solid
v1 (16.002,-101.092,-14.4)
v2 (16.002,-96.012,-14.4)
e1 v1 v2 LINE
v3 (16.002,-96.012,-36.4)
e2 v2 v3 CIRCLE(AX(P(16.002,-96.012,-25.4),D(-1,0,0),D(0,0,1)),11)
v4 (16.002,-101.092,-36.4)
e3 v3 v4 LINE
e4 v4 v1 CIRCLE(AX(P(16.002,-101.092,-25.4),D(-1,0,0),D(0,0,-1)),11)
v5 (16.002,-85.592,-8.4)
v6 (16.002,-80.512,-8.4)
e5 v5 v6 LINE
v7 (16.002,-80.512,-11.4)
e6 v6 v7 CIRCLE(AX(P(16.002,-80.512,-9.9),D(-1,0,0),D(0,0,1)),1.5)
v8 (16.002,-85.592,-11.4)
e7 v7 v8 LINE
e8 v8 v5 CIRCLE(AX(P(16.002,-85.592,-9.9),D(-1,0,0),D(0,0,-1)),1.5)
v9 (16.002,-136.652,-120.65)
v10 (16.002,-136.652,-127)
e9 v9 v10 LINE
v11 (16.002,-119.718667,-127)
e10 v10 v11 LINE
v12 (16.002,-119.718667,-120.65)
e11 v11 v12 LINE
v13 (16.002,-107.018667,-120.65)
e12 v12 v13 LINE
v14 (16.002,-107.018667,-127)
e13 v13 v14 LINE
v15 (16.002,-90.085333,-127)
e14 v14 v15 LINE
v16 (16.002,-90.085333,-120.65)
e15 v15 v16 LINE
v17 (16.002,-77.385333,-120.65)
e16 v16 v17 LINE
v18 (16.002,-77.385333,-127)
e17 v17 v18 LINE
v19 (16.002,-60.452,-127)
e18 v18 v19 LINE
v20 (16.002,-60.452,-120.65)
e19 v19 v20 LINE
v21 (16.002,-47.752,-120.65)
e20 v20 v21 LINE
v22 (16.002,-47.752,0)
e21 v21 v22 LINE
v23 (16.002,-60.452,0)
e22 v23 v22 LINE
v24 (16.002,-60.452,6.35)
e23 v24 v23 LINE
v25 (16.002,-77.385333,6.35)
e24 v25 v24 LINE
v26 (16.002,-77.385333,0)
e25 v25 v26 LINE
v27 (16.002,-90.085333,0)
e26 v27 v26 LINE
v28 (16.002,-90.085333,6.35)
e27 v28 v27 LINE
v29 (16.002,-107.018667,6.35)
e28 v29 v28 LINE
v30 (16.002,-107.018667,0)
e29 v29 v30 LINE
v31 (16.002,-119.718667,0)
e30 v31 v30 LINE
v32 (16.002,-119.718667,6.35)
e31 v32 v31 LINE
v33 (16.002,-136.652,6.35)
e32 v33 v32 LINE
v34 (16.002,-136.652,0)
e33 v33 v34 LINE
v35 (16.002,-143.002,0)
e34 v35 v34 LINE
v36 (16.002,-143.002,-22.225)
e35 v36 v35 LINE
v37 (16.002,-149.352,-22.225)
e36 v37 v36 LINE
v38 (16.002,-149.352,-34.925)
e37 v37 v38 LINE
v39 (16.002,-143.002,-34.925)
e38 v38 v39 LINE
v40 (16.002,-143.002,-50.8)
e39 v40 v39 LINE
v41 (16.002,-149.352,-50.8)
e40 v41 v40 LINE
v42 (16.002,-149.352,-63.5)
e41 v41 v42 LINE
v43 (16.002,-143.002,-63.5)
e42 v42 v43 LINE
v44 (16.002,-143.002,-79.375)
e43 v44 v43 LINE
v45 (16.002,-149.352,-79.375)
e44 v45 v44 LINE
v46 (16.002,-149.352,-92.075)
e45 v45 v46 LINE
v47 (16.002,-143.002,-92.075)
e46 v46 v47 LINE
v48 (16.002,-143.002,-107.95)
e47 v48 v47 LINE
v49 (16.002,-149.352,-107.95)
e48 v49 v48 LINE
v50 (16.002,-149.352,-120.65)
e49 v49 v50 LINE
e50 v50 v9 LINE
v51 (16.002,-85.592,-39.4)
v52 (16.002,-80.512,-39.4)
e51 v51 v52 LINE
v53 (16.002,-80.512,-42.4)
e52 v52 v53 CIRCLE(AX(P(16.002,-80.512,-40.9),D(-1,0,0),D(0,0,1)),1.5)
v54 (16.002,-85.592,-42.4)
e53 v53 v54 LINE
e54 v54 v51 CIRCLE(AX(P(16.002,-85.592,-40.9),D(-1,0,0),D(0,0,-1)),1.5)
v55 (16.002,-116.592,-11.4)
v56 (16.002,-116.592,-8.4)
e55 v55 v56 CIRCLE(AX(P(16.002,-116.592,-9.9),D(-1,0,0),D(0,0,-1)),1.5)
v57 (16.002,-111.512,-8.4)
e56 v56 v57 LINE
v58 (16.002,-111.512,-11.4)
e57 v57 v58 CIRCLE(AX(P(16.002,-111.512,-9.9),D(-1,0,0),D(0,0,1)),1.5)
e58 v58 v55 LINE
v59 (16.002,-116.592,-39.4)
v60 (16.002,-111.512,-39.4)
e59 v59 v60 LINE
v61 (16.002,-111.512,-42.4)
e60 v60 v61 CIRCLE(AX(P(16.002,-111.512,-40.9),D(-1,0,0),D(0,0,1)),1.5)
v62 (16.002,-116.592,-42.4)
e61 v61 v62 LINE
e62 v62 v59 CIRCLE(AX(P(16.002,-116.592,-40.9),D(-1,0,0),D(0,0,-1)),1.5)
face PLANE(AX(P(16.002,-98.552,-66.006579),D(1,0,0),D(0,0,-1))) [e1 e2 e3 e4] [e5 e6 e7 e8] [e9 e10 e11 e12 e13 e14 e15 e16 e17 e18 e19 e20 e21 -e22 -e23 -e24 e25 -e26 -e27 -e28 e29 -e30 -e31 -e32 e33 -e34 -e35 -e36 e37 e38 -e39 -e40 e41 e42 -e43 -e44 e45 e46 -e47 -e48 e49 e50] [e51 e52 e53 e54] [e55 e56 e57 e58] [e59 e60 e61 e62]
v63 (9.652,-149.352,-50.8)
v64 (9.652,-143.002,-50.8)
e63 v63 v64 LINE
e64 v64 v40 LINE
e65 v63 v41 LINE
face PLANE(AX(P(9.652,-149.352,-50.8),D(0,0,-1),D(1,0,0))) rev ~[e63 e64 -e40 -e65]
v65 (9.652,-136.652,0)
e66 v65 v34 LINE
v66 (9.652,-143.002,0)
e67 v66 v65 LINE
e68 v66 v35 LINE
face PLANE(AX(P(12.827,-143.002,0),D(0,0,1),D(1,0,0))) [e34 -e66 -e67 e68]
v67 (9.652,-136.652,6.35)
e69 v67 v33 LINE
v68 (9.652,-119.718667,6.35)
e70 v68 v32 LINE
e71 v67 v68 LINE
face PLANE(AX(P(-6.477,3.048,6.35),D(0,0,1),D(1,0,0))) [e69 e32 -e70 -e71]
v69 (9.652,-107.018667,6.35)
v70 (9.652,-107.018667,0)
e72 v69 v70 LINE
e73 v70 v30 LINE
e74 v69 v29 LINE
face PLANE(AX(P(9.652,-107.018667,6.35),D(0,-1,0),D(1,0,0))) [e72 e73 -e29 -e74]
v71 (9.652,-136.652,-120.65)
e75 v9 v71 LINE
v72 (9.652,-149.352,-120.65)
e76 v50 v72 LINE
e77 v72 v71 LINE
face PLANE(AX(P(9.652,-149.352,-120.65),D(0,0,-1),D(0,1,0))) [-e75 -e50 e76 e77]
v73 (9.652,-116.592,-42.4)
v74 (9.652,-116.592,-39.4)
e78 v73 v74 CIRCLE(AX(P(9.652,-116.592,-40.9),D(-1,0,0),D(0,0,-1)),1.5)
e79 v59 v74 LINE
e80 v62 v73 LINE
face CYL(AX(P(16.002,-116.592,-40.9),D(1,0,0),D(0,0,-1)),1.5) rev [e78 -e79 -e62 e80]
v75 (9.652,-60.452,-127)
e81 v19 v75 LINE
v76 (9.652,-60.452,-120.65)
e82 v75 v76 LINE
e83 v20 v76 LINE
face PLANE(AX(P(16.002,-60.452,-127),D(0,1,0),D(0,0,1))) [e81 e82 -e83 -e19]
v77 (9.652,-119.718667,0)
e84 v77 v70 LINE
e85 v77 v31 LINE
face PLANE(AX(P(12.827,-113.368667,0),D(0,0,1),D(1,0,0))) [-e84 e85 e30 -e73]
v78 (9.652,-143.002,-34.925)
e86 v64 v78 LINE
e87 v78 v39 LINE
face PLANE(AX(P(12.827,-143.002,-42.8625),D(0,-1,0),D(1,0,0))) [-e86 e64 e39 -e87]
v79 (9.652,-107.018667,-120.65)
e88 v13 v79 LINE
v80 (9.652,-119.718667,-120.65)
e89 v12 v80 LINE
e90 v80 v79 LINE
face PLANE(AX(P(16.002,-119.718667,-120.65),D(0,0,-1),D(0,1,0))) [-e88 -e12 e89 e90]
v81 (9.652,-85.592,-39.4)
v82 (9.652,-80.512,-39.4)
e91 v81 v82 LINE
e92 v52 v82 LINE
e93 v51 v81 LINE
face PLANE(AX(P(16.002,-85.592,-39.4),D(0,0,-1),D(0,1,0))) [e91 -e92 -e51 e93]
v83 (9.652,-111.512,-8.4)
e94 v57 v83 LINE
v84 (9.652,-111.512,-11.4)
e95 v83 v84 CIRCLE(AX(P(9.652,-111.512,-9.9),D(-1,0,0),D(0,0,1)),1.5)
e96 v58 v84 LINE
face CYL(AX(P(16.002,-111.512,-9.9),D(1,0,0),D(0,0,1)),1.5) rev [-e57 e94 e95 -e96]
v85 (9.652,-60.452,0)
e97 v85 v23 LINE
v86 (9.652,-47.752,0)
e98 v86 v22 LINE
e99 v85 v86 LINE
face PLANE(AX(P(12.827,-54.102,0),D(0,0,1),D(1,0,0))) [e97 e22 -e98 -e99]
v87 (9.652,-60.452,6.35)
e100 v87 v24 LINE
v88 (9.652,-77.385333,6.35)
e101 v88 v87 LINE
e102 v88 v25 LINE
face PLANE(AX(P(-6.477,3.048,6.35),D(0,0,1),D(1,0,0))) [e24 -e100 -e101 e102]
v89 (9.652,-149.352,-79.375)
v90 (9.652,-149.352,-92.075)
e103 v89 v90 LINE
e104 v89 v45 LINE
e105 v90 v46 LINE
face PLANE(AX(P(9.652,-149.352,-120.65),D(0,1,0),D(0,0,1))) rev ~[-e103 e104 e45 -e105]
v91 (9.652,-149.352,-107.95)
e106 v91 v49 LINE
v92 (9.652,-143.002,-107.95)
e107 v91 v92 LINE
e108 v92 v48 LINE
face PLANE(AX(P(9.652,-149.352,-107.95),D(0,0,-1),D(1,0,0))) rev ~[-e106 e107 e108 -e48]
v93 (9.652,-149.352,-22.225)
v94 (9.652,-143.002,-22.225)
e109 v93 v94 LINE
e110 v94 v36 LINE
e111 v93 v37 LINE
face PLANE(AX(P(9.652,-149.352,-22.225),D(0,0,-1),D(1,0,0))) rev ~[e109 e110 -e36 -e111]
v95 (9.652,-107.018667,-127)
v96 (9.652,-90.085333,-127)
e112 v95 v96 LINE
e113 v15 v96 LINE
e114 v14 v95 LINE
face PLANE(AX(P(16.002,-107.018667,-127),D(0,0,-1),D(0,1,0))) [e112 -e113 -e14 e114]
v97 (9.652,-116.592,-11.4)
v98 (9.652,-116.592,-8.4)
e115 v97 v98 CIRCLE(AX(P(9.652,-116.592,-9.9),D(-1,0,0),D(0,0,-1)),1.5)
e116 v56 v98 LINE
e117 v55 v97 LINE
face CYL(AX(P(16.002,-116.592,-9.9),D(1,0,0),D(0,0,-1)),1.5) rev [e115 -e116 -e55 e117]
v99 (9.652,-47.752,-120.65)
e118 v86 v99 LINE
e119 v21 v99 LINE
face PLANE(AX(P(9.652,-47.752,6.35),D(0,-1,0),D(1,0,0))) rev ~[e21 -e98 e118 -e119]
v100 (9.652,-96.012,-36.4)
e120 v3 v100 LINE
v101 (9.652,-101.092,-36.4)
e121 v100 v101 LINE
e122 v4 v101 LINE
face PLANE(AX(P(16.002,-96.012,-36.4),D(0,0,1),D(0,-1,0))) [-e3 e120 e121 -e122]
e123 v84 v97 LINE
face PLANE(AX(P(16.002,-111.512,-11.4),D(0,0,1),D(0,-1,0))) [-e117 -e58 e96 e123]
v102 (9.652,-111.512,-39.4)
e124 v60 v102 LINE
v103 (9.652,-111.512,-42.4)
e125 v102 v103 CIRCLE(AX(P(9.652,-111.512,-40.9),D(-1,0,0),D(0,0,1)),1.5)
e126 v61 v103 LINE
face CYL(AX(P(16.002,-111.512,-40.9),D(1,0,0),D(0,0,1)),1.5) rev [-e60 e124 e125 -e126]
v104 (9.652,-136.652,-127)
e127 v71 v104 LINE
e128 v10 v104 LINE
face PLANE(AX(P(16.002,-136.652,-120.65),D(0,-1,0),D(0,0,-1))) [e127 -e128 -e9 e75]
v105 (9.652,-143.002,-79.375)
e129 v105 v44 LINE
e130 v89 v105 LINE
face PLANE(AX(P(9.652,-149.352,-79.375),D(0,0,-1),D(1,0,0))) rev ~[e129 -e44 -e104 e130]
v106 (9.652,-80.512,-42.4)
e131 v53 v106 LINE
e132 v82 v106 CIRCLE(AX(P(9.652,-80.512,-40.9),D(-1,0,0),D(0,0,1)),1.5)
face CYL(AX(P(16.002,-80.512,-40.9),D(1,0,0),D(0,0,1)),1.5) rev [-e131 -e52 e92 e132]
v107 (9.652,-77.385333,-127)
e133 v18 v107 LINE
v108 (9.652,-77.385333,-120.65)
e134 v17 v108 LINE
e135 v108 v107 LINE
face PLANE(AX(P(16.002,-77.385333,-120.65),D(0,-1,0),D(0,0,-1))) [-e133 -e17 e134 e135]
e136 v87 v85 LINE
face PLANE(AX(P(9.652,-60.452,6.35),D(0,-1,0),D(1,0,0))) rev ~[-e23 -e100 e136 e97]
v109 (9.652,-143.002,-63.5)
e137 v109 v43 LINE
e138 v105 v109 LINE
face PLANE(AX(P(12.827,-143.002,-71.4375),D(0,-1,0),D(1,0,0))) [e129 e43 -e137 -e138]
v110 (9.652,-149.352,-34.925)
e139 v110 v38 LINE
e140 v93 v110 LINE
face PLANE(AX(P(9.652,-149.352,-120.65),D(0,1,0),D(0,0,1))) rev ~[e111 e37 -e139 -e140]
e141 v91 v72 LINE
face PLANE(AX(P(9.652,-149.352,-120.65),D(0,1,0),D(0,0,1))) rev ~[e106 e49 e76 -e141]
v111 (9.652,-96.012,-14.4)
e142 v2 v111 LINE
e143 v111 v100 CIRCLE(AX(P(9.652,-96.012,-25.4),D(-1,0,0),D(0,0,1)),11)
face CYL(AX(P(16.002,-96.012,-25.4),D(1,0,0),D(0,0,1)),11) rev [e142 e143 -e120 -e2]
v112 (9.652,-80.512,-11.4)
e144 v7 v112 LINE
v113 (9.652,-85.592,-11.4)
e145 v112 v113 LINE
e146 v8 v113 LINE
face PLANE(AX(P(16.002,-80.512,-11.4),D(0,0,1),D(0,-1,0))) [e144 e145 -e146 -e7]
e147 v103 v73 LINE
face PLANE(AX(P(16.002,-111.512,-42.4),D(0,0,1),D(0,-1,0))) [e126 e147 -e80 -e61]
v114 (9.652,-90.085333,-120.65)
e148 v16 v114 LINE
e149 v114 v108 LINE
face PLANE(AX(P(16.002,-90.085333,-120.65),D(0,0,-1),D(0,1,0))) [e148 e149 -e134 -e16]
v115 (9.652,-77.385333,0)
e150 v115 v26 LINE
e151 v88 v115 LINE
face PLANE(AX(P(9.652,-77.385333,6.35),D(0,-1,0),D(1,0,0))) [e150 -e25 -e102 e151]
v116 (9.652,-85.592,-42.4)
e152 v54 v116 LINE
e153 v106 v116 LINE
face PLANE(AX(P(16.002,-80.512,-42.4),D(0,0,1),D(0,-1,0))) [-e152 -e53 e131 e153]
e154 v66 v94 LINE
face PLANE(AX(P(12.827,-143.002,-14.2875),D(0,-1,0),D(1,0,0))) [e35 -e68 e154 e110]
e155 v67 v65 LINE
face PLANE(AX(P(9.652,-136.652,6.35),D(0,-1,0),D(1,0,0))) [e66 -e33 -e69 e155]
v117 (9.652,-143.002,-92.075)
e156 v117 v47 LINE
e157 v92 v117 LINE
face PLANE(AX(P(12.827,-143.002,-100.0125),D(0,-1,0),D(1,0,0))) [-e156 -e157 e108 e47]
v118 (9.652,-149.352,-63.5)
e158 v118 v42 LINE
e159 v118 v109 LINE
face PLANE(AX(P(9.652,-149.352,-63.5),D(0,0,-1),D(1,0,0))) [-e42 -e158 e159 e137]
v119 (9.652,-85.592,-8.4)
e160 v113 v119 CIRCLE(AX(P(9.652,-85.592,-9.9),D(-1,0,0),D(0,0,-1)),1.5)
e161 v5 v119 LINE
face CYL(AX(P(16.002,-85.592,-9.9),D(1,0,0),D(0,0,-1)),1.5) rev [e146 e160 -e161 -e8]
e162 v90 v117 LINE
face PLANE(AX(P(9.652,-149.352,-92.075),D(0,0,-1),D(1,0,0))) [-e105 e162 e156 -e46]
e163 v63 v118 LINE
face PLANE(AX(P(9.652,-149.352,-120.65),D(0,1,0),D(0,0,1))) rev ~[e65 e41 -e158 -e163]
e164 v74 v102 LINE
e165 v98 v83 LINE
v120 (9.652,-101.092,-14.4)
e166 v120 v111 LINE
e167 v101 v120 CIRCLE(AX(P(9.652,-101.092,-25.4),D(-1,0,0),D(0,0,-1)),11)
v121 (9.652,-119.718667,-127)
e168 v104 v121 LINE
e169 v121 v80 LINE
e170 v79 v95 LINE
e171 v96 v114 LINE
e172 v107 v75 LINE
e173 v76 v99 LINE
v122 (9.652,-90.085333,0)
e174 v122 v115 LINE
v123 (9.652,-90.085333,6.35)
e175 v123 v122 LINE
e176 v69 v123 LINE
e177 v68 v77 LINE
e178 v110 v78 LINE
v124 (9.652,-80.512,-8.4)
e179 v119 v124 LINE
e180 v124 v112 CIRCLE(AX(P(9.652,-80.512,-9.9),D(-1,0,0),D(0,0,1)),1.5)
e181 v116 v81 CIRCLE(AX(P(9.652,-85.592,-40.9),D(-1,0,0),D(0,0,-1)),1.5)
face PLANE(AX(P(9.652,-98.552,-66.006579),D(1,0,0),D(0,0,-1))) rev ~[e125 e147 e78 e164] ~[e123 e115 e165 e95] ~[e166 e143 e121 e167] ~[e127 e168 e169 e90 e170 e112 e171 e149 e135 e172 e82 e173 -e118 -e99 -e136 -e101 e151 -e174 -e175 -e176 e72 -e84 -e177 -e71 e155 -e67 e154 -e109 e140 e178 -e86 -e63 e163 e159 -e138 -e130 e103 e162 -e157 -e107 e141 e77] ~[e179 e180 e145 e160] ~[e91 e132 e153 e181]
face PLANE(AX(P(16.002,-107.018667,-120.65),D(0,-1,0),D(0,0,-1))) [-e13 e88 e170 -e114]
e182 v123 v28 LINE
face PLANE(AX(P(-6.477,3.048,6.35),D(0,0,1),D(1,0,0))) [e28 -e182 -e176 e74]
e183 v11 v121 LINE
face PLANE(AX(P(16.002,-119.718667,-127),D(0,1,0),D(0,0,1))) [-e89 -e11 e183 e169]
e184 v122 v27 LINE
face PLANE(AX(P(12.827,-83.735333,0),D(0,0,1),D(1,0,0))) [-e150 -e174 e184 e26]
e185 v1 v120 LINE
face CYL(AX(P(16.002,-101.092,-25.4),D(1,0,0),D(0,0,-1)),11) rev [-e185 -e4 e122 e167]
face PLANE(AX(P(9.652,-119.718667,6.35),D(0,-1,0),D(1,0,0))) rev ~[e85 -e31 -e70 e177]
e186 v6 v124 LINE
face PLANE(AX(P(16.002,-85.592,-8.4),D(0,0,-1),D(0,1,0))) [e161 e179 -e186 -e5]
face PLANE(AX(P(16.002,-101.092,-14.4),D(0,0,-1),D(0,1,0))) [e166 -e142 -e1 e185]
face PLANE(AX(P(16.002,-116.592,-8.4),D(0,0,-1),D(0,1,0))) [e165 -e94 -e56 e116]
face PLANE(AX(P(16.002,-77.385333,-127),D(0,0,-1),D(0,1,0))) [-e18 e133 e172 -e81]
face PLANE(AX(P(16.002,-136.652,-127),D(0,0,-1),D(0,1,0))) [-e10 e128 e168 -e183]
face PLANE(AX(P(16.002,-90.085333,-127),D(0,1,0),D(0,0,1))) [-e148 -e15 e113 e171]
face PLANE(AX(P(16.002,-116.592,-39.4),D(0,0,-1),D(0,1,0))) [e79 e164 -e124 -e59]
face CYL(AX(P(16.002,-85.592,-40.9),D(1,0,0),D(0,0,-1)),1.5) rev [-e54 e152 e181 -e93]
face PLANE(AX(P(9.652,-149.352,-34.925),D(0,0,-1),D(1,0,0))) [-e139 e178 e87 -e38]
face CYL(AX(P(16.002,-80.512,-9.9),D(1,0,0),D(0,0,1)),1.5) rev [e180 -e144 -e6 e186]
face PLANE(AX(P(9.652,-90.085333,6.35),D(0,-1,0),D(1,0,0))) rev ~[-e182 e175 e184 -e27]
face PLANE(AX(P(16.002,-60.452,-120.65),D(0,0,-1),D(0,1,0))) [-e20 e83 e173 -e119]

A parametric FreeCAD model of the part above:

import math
import FreeCAD as App
import Part
import Sketcher
from FreeCAD import Vector
Q = App.Units.Quantity

doc = App.newDocument("Part")
params = doc.addObject("Spreadsheet::Sheet", "Params")
for row, (alias, value) in enumerate([
    ("sketch1_radius", "0.1 in"),
    ("sketch1_height", "12 in"),
    ("sketch1_height2", "10.9 in"),
    ("sketch1_width", "1.77 in"),
    ("sketch1_width2", "0.41 in"),
    ("pad1_length", "0.25 in"),
    ("sketch2_width", "4 in"),
    ("sketch2_height", "5 in"),
    ("sketch2_width2", "0.5 in"),
    ("sketch2_width3", "0.2 in"),
    ("sketch2_height2", "0.25 in"),
    ("pad2_length", "0.25 in"),
    ("sketch3_width", "0.25 in"),
    ("sketch3_height", "4.75 in"),
    ("pad3_length", "1.52 in"),
    ("sketch4_radius", "0.1 in"),
    ("sketch4_height", "4 in"),
    ("sketch4_height2", "10.9 in"),
    ("sketch4_width", "0.25 in"),
    ("sketch4_width2", "0.41 in"),
    ("sketch5_height", "0.5 in"),
    ("sketch5_width", "0.25 in"),
    ("pocket2_length", "0.25 in"),
    ("sketch6_width", "0.25 in"),
    ("sketch6_height", "0.625 in"),
    ("sketch6_height2", "1.125 in"),
    ("pocket3_length", "0.25 in"),
], start=1):
    params.set(f"A{row}", alias)
    params.set(f"B{row}", "=" + value)
    params.setAlias(f"B{row}", alias)

body = doc.addObject("PartDesign::Body", "Body")

sketch1 = body.newObject("Sketcher::SketchObject", "Sketch")
sketch1.AttachmentSupport = (doc.getObject("XY_Plane"), [""])
sketch1.MapMode = "FlatFace"
sketch1.addGeometry([
    Part.LineSegment(Vector(-28.956, 155.448, 0), Vector(-28.956, -149.352, 0)),
    Part.LineSegment(Vector(-28.956, -149.352, 0), Vector(16.002, -149.352, 0)),
    Part.LineSegment(Vector(16.002, -149.352, 0), Vector(16.002, 155.448, 0)),
    Part.LineSegment(Vector(16.002, 155.448, 0), Vector(-28.956, 155.448, 0)),
    Part.LineSegment(Vector(-3.302, -143.002, 0), Vector(-3.302, 133.858, 0)),
    Part.ArcOfCircle(Part.Circle(Vector(-5.842, 133.858, 0), Vector(0, 0, 1), 2.54), math.radians(0), math.radians(90)),
    Part.LineSegment(Vector(-5.842, 136.398, 0), Vector(-16.256, 136.398, 0)),
    Part.LineSegment(Vector(-16.256, 136.398, 0), Vector(-16.256, 143.002, 0)),
    Part.LineSegment(Vector(-16.256, 143.002, 0), Vector(3.302, 143.002, 0)),
    Part.LineSegment(Vector(3.302, 143.002, 0), Vector(3.302, -143.002, 0)),
    Part.LineSegment(Vector(3.302, -143.002, 0), Vector(-3.302, -143.002, 0)),
], False)
sketch1.addConstraint([
    Sketcher.Constraint("Coincident", 0, 2, 1, 1),
    Sketcher.Constraint("Coincident", 1, 2, 2, 1),
    Sketcher.Constraint("Coincident", 2, 2, 3, 1),
    Sketcher.Constraint("Coincident", 3, 2, 0, 1),
    Sketcher.Constraint("Tangent", 4, 2, 5, 1),
    Sketcher.Constraint("Tangent", 5, 2, 6, 1),
    Sketcher.Constraint("Coincident", 6, 2, 7, 1),
    Sketcher.Constraint("Coincident", 7, 2, 8, 1),
    Sketcher.Constraint("Coincident", 8, 2, 9, 1),
    Sketcher.Constraint("Coincident", 9, 2, 10, 1),
    Sketcher.Constraint("Coincident", 10, 2, 4, 1),
    Sketcher.Constraint("Vertical", 0),
    Sketcher.Constraint("Horizontal", 1),
    Sketcher.Constraint("Vertical", 2),
    Sketcher.Constraint("Horizontal", 3),
    Sketcher.Constraint("Vertical", 4),
    Sketcher.Constraint("Horizontal", 6),
    Sketcher.Constraint("Vertical", 7),
    Sketcher.Constraint("Horizontal", 8),
    Sketcher.Constraint("Vertical", 9),
    Sketcher.Constraint("Horizontal", 10),
    Sketcher.Constraint("Symmetric", 8, 2, 10, 2, -1, 1),
    Sketcher.Constraint("Equal", 10, 7),
    Sketcher.Constraint("Radius", 5, Q("0.1 in")),
    Sketcher.Constraint("DistanceY", 0, 2, 0, 1, Q("12 in")),
    Sketcher.Constraint("DistanceY", 4, 1, 4, 2, Q("10.9 in")),
    Sketcher.Constraint("DistanceX", 1, 1, 1, 2, Q("1.77 in")),
    Sketcher.Constraint("DistanceX", 6, 2, 6, 1, Q("0.41 in")),
    Sketcher.Constraint("DistanceX", 8, 1, 8, 2, Q("0.77 in")),
    Sketcher.Constraint("DistanceX", 3, 2, 6, 2, Q("0.5 in")),
    Sketcher.Constraint("DistanceY", 0, 2, -1, 1, Q("5.88 in")),
])
sketch1.setExpression("Constraints[23]", "Params.sketch1_radius")
sketch1.setExpression("Constraints[24]", "Params.sketch1_height")
sketch1.setExpression("Constraints[25]", "Params.sketch1_height2")
sketch1.setExpression("Constraints[26]", "Params.sketch1_width")
sketch1.setExpression("Constraints[27]", "Params.sketch1_width2")
pad1 = body.newObject("PartDesign::Pad", "Pad")
pad1.Profile = sketch1
pad1.setExpression("Length", "Params.pad1_length")

sketch2 = body.newObject("Sketcher::SketchObject", "Sketch001")
sketch2.AttachmentSupport = (doc.getObject("YZ_Plane"), [""])
sketch2.MapMode = "FlatFace"
sketch2.AttachmentOffset = App.Placement(Vector(0, 0, 0.63 * 25.4), App.Rotation())
sketch2.addGeometry([
    Part.LineSegment(Vector(-60.452, -120.65, 0), Vector(-47.752, -120.65, 0)),
    Part.LineSegment(Vector(-47.752, -120.65, 0), Vector(-47.752, 6.35, 0)),
    Part.LineSegment(Vector(-47.752, 6.35, 0), Vector(-149.352, 6.35, 0)),
    Part.LineSegment(Vector(-149.352, 6.35, 0), Vector(-149.352, -120.65, 0)),
    Part.LineSegment(Vector(-149.352, -120.65, 0), Vector(-136.652, -120.65, 0)),
    Part.LineSegment(Vector(-136.652, -120.65, 0), Vector(-136.652, -127, 0)),
    Part.LineSegment(Vector(-136.652, -127, 0), Vector(-119.718667, -127, 0)),
    Part.LineSegment(Vector(-119.718667, -127, 0), Vector(-119.718667, -120.65, 0)),
    Part.LineSegment(Vector(-119.718667, -120.65, 0), Vector(-107.018667, -120.65, 0)),
    Part.LineSegment(Vector(-107.018667, -120.65, 0), Vector(-107.018667, -127, 0)),
    Part.LineSegment(Vector(-107.018667, -127, 0), Vector(-90.085333, -127, 0)),
    Part.LineSegment(Vector(-90.085333, -127, 0), Vector(-90.085333, -120.65, 0)),
    Part.LineSegment(Vector(-90.085333, -120.65, 0), Vector(-77.385333, -120.65, 0)),
    Part.LineSegment(Vector(-77.385333, -120.65, 0), Vector(-77.385333, -127, 0)),
    Part.LineSegment(Vector(-77.385333, -127, 0), Vector(-60.452, -127, 0)),
    Part.LineSegment(Vector(-60.452, -127, 0), Vector(-60.452, -120.65, 0)),
    Part.LineSegment(Vector(-111.512, -11.4, 0), Vector(-116.592, -11.4, 0)),
    Part.ArcOfCircle(Part.Circle(Vector(-116.592, -9.9, 0), Vector(0, 0, 1), 1.5), math.radians(90), math.radians(270)),
    Part.LineSegment(Vector(-116.592, -8.4, 0), Vector(-111.512, -8.4, 0)),
    Part.ArcOfCircle(Part.Circle(Vector(-111.512, -9.9, 0), Vector(0, 0, 1), 1.5), math.radians(-90), math.radians(90)),
    Part.ArcOfCircle(Part.Circle(Vector(-111.512, -40.9, 0), Vector(0, 0, 1), 1.5), math.radians(-90), math.radians(90)),
    Part.LineSegment(Vector(-111.512, -42.4, 0), Vector(-116.592, -42.4, 0)),
    Part.ArcOfCircle(Part.Circle(Vector(-116.592, -40.9, 0), Vector(0, 0, 1), 1.5), math.radians(90), math.radians(270)),
    Part.LineSegment(Vector(-116.592, -39.4, 0), Vector(-111.512, -39.4, 0)),
    Part.LineSegment(Vector(-80.512, -11.4, 0), Vector(-85.592, -11.4, 0)),
    Part.ArcOfCircle(Part.Circle(Vector(-85.592, -9.9, 0), Vector(0, 0, 1), 1.5), math.radians(90), math.radians(270)),
    Part.LineSegment(Vector(-85.592, -8.4, 0), Vector(-80.512, -8.4, 0)),
    Part.ArcOfCircle(Part.Circle(Vector(-80.512, -9.9, 0), Vector(0, 0, 1), 1.5), math.radians(-90), math.radians(90)),
    Part.LineSegment(Vector(-96.012, -36.4, 0), Vector(-101.092, -36.4, 0)),
    Part.ArcOfCircle(Part.Circle(Vector(-101.092, -25.4, 0), Vector(0, 0, 1), 11), math.radians(90), math.radians(270)),
    Part.LineSegment(Vector(-101.092, -14.4, 0), Vector(-96.012, -14.4, 0)),
    Part.ArcOfCircle(Part.Circle(Vector(-96.012, -25.4, 0), Vector(0, 0, 1), 11), math.radians(-90), math.radians(90)),
    Part.LineSegment(Vector(-80.512, -42.4, 0), Vector(-85.592, -42.4, 0)),
    Part.ArcOfCircle(Part.Circle(Vector(-85.592, -40.9, 0), Vector(0, 0, 1), 1.5), math.radians(90), math.radians(270)),
    Part.LineSegment(Vector(-85.592, -39.4, 0), Vector(-80.512, -39.4, 0)),
    Part.ArcOfCircle(Part.Circle(Vector(-80.512, -40.9, 0), Vector(0, 0, 1), 1.5), math.radians(-90), math.radians(90)),
], False)
sketch2.addConstraint([
    Sketcher.Constraint("Coincident", 0, 2, 1, 1),
    Sketcher.Constraint("Coincident", 1, 2, 2, 1),
    Sketcher.Constraint("Coincident", 2, 2, 3, 1),
    Sketcher.Constraint("Coincident", 3, 2, 4, 1),
    Sketcher.Constraint("Coincident", 4, 2, 5, 1),
    Sketcher.Constraint("Coincident", 5, 2, 6, 1),
    Sketcher.Constraint("Coincident", 6, 2, 7, 1),
    Sketcher.Constraint("Coincident", 7, 2, 8, 1),
    Sketcher.Constraint("Coincident", 8, 2, 9, 1),
    Sketcher.Constraint("Coincident", 9, 2, 10, 1),
    Sketcher.Constraint("Coincident", 10, 2, 11, 1),
    Sketcher.Constraint("Coincident", 11, 2, 12, 1),
    Sketcher.Constraint("Coincident", 12, 2, 13, 1),
    Sketcher.Constraint("Coincident", 13, 2, 14, 1),
    Sketcher.Constraint("Coincident", 14, 2, 15, 1),
    Sketcher.Constraint("Coincident", 15, 2, 0, 1),
    Sketcher.Constraint("Tangent", 16, 2, 17, 2),
    Sketcher.Constraint("Tangent", 17, 1, 18, 1),
    Sketcher.Constraint("Tangent", 18, 2, 19, 2),
    Sketcher.Constraint("Tangent", 19, 1, 16, 1),
    Sketcher.Constraint("Tangent", 20, 1, 21, 1),
    Sketcher.Constraint("Tangent", 21, 2, 22, 2),
    Sketcher.Constraint("Tangent", 22, 1, 23, 1),
    Sketcher.Constraint("Tangent", 23, 2, 20, 2),
    Sketcher.Constraint("Tangent", 24, 2, 25, 2),
    Sketcher.Constraint("Tangent", 25, 1, 26, 1),
    Sketcher.Constraint("Tangent", 26, 2, 27, 2),
    Sketcher.Constraint("Tangent", 27, 1, 24, 1),
    Sketcher.Constraint("Tangent", 28, 2, 29, 2),
    Sketcher.Constraint("Tangent", 29, 1, 30, 1),
    Sketcher.Constraint("Tangent", 30, 2, 31, 2),
    Sketcher.Constraint("Tangent", 31, 1, 28, 1),
    Sketcher.Constraint("Tangent", 32, 2, 33, 2),
    Sketcher.Constraint("Tangent", 33, 1, 34, 1),
    Sketcher.Constraint("Tangent", 34, 2, 35, 2),
    Sketcher.Constraint("Tangent", 35, 1, 32, 1),
    Sketcher.Constraint("Horizontal", 0),
    Sketcher.Constraint("Vertical", 1),
    Sketcher.Constraint("Horizontal", 2),
    Sketcher.Constraint("Vertical", 3),
    Sketcher.Constraint("Horizontal", 4),
    Sketcher.Constraint("Vertical", 5),
    Sketcher.Constraint("Horizontal", 6),
    Sketcher.Constraint("Vertical", 7),
    Sketcher.Constraint("Horizontal", 8),
    Sketcher.Constraint("Vertical", 9),
    Sketcher.Constraint("Horizontal", 10),
    Sketcher.Constraint("Vertical", 11),
    Sketcher.Constraint("Horizontal", 12),
    Sketcher.Constraint("Vertical", 13),
    Sketcher.Constraint("Horizontal", 14),
    Sketcher.Constraint("Vertical", 15),
    Sketcher.Constraint("Horizontal", 16),
    Sketcher.Constraint("Horizontal", 18),
    Sketcher.Constraint("Horizontal", 21),
    Sketcher.Constraint("Horizontal", 23),
    Sketcher.Constraint("Horizontal", 24),
    Sketcher.Constraint("Horizontal", 26),
    Sketcher.Constraint("Horizontal", 28),
    Sketcher.Constraint("Horizontal", 30),
    Sketcher.Constraint("Horizontal", 32),
    Sketcher.Constraint("Horizontal", 34),
    Sketcher.Constraint("Equal", 19, 20),
    Sketcher.Constraint("Equal", 22, 25),
    Sketcher.Constraint("Equal", 27, 33),
    Sketcher.Constraint("Horizontal", 19, 3, 25, 3),
    Sketcher.Constraint("Horizontal", 22, 3, 33, 3),
    Sketcher.Constraint("Horizontal", 0, 2, 3, 2),
    Sketcher.Constraint("Horizontal", 4, 2, 7, 2),
    Sketcher.Constraint("Horizontal", 6, 2, 9, 2),
    Sketcher.Constraint("Horizontal", 8, 2, 11, 2),
    Sketcher.Constraint("Horizontal", 10, 2, 13, 2),
    Sketcher.Constraint("Vertical", 19, 3, 20, 3),
    Sketcher.Constraint("Vertical", 17, 3, 22, 3),
    Sketcher.Constraint("Vertical", 25, 3, 33, 3),
    Sketcher.Constraint("Vertical", 27, 3, 35, 3),
    Sketcher.Constraint("Equal", 0, 4),
    Sketcher.Constraint("Equal", 4, 8),
    Sketcher.Constraint("Equal", 6, 10),
    Sketcher.Constraint("Equal", 8, 12),
    Sketcher.Constraint("Equal", 10, 14),
    Sketcher.Constraint("Equal", 23, 24),
    Sketcher.Constraint("Equal", 26, 28),
    Sketcher.Constraint("DistanceX", 2, 2, 2, 1, Q("4 in")),
    Sketcher.Constraint("DistanceY", 1, 1, 1, 2, Q("5 in")),
    Sketcher.Constraint("DistanceX", 0, 1, 0, 2, Q("0.5 in")),
    Sketcher.Constraint("DistanceX", 16, 2, 16, 1, Q("0.2 in")),
    Sketcher.Constraint("DistanceY", 29, 3, -1, 1, Q("1 in")),
    Sketcher.Constraint("DistanceY", 5, 2, -1, 1, Q("5 in")),
    Sketcher.Constraint("DistanceY", 5, 2, 5, 1, Q("0.25 in")),
    Sketcher.Constraint("DistanceX", 31, 3, 0, 2, Q("1.9 in")),
    Sketcher.Constraint("DistanceX", 29, 3, -1, 1, Q("3.98 in")),
    Sketcher.Constraint("Radius", 17, Q("1.5 mm")),
    Sketcher.Constraint("Radius", 29, Q("11 mm")),
    Sketcher.Constraint("DistanceX", 17, 3, -1, 1, Q("116.592 mm")),
    Sketcher.Constraint("DistanceY", 17, 3, -1, 1, Q("9.9 mm")),
    Sketcher.Constraint("DistanceY", 20, 3, -1, 1, Q("40.9 mm")),
    Sketcher.Constraint("DistanceX", 25, 3, -1, 1, Q("85.592 mm")),
])
sketch2.setExpression("Constraints[83]", "Params.sketch2_width")
sketch2.setExpression("Constraints[84]", "Params.sketch2_height")
sketch2.setExpression("Constraints[85]", "Params.sketch2_width2")
sketch2.setExpression("Constraints[86]", "Params.sketch2_width3")
sketch2.setExpression("Constraints[89]", "Params.sketch2_height2")
pad2 = body.newObject("PartDesign::Pad", "Pad001")
pad2.Profile = sketch2
pad2.setExpression("Length", "Params.pad2_length")
pad2.Reversed = True

sketch3 = body.newObject("Sketcher::SketchObject", "Sketch002")
sketch3.AttachmentSupport = (doc.getObject("YZ_Plane"), [""])
sketch3.MapMode = "FlatFace"
sketch3.AttachmentOffset = App.Placement(Vector(0, 0, 0.38 * 25.4), App.Rotation())
sketch3.addGeometry([
    Part.LineSegment(Vector(-143.002, -120.65, 0), Vector(-149.352, -120.65, 0)),
    Part.LineSegment(Vector(-149.352, -120.65, 0), Vector(-149.352, 0, 0)),
    Part.LineSegment(Vector(-149.352, 0, 0), Vector(-143.002, 0, 0)),
    Part.LineSegment(Vector(-143.002, 0, 0), Vector(-143.002, -120.65, 0)),
], False)
sketch3.addConstraint([
    Sketcher.Constraint("Coincident", 0, 2, 1, 1),
    Sketcher.Constraint("Coincident", 1, 2, 2, 1),
    Sketcher.Constraint("Coincident", 2, 2, 3, 1),
    Sketcher.Constraint("Coincident", 3, 2, 0, 1),
    Sketcher.Constraint("Horizontal", 0),
    Sketcher.Constraint("Vertical", 1),
    Sketcher.Constraint("Horizontal", 2),
    Sketcher.Constraint("Vertical", 3),
    Sketcher.Constraint("PointOnObject", 1, 2, -1),
    Sketcher.Constraint("DistanceX", 0, 2, 0, 1, Q("0.25 in")),
    Sketcher.Constraint("DistanceY", 1, 1, 1, 2, Q("4.75 in")),
    Sketcher.Constraint("DistanceX", 0, 2, -1, 1, Q("5.88 in")),
])
sketch3.setExpression("Constraints[9]", "Params.sketch3_width")
sketch3.setExpression("Constraints[10]", "Params.sketch3_height")
pad3 = body.newObject("PartDesign::Pad", "Pad002")
pad3.Profile = sketch3
pad3.setExpression("Length", "Params.pad3_length")
pad3.Reversed = True

sketch4 = body.newObject("Sketcher::SketchObject", "Sketch003")
sketch4.AttachmentSupport = (doc.getObject("XY_Plane"), [""])
sketch4.MapMode = "FlatFace"
sketch4.AttachmentOffset = App.Placement(Vector(0, 0, 0.25 * 25.4), App.Rotation())
sketch4.addGeometry([
    Part.LineSegment(Vector(9.652, -149.352, 0), Vector(9.652, -47.752, 0)),
    Part.LineSegment(Vector(9.652, -47.752, 0), Vector(16.002, -47.752, 0)),
    Part.LineSegment(Vector(16.002, -47.752, 0), Vector(16.002, 165.69935, 0)),
    Part.LineSegment(Vector(16.002, 165.69935, 0), Vector(-54.223543, 165.69935, 0)),
    Part.LineSegment(Vector(-54.223543, 165.69935, 0), Vector(-54.223543, -149.352, 0)),
    Part.LineSegment(Vector(-54.223543, -149.352, 0), Vector(9.652, -149.352, 0)),
    Part.LineSegment(Vector(-5.842, 136.398, 0), Vector(-16.256, 136.398, 0)),
    Part.LineSegment(Vector(-16.256, 136.398, 0), Vector(-16.256, 143.002, 0)),
    Part.LineSegment(Vector(-16.256, 143.002, 0), Vector(3.302, 143.002, 0)),
    Part.LineSegment(Vector(3.302, 143.002, 0), Vector(3.302, -143.002, 0)),
    Part.LineSegment(Vector(3.302, -143.002, 0), Vector(-3.302, -143.002, 0)),
    Part.LineSegment(Vector(-3.302, -143.002, 0), Vector(-3.302, 133.858, 0)),
    Part.ArcOfCircle(Part.Circle(Vector(-5.842, 133.858, 0), Vector(0, 0, 1), 2.54), math.radians(0), math.radians(90)),
], False)
sketch4.addConstraint([
    Sketcher.Constraint("Coincident", 0, 2, 1, 1),
    Sketcher.Constraint("Coincident", 1, 2, 2, 1),
    Sketcher.Constraint("Coincident", 2, 2, 3, 1),
    Sketcher.Constraint("Coincident", 3, 2, 4, 1),
    Sketcher.Constraint("Coincident", 4, 2, 5, 1),
    Sketcher.Constraint("Coincident", 5, 2, 0, 1),
    Sketcher.Constraint("Coincident", 6, 2, 7, 1),
    Sketcher.Constraint("Coincident", 7, 2, 8, 1),
    Sketcher.Constraint("Coincident", 8, 2, 9, 1),
    Sketcher.Constraint("Coincident", 9, 2, 10, 1),
    Sketcher.Constraint("Coincident", 10, 2, 11, 1),
    Sketcher.Constraint("Tangent", 11, 2, 12, 1),
    Sketcher.Constraint("Tangent", 12, 2, 6, 1),
    Sketcher.Constraint("Vertical", 0),
    Sketcher.Constraint("Horizontal", 1),
    Sketcher.Constraint("Vertical", 2),
    Sketcher.Constraint("Horizontal", 3),
    Sketcher.Constraint("Vertical", 4),
    Sketcher.Constraint("Horizontal", 5),
    Sketcher.Constraint("Horizontal", 6),
    Sketcher.Constraint("Vertical", 7),
    Sketcher.Constraint("Horizontal", 8),
    Sketcher.Constraint("Vertical", 9),
    Sketcher.Constraint("Horizontal", 10),
    Sketcher.Constraint("Vertical", 11),
    Sketcher.Constraint("Symmetric", 8, 2, 10, 2, -1, 1),
    Sketcher.Constraint("Equal", 10, 7),
    Sketcher.Constraint("Radius", 12, Q("0.1 in")),
    Sketcher.Constraint("DistanceY", 0, 1, 0, 2, Q("4 in")),
    Sketcher.Constraint("DistanceY", 11, 1, 11, 2, Q("10.9 in")),
    Sketcher.Constraint("DistanceX", 1, 1, 1, 2, Q("0.25 in")),
    Sketcher.Constraint("DistanceX", 6, 2, 6, 1, Q("0.41 in")),
    Sketcher.Constraint("DistanceX", 8, 1, 8, 2, Q("0.77 in")),
    Sketcher.Constraint("DistanceX", 8, 2, 2, 2, Q("0.5 in")),
    Sketcher.Constraint("DistanceY", 0, 2, -1, 1, Q("1.88 in")),
    Sketcher.Constraint("DistanceY", 2, 1, 2, 2, Q("213.45135 mm")),
    Sketcher.Constraint("DistanceX", 3, 2, 3, 1, Q("70.225543 mm")),
])
sketch4.setExpression("Constraints[27]", "Params.sketch4_radius")
sketch4.setExpression("Constraints[28]", "Params.sketch4_height")
sketch4.setExpression("Constraints[29]", "Params.sketch4_height2")
sketch4.setExpression("Constraints[30]", "Params.sketch4_width")
sketch4.setExpression("Constraints[31]", "Params.sketch4_width2")
pocket1 = body.newObject("PartDesign::Pocket", "Pocket")
pocket1.Profile = sketch4
pocket1.Type = "ThroughAll"
pocket1.Midplane = True

sketch5 = body.newObject("Sketcher::SketchObject", "Sketch004")
sketch5.AttachmentSupport = (doc.getObject("XY_Plane"), [""])
sketch5.MapMode = "FlatFace"
sketch5.AttachmentOffset = App.Placement(Vector(0, 0, 0.25 * 25.4), App.Rotation())
sketch5.addGeometry([
    Part.LineSegment(Vector(9.652, -47.752, 0), Vector(9.652, -60.452, 0)),
    Part.LineSegment(Vector(9.652, -60.452, 0), Vector(16.002, -60.452, 0)),
    Part.LineSegment(Vector(16.002, -60.452, 0), Vector(16.002, -47.752, 0)),
    Part.LineSegment(Vector(16.002, -47.752, 0), Vector(9.652, -47.752, 0)),
    Part.LineSegment(Vector(9.652, -77.385333, 0), Vector(9.652, -90.085333, 0)),
    Part.LineSegment(Vector(9.652, -90.085333, 0), Vector(16.002, -90.085333, 0)),
    Part.LineSegment(Vector(16.002, -90.085333, 0), Vector(16.002, -77.385333, 0)),
    Part.LineSegment(Vector(16.002, -77.385333, 0), Vector(9.652, -77.385333, 0)),
    Part.LineSegment(Vector(9.652, -107.018667, 0), Vector(9.652, -119.718667, 0)),
    Part.LineSegment(Vector(9.652, -119.718667, 0), Vector(16.002, -119.718667, 0)),
    Part.LineSegment(Vector(16.002, -119.718667, 0), Vector(16.002, -107.018667, 0)),
    Part.LineSegment(Vector(16.002, -107.018667, 0), Vector(9.652, -107.018667, 0)),
    Part.LineSegment(Vector(9.652, -136.652, 0), Vector(9.652, -149.352, 0)),
    Part.LineSegment(Vector(9.652, -149.352, 0), Vector(16.002, -149.352, 0)),
    Part.LineSegment(Vector(16.002, -149.352, 0), Vector(16.002, -136.652, 0)),
    Part.LineSegment(Vector(16.002, -136.652, 0), Vector(9.652, -136.652, 0)),
], False)
sketch5.addConstraint([
    Sketcher.Constraint("Coincident", 0, 2, 1, 1),
    Sketcher.Constraint("Coincident", 1, 2, 2, 1),
    Sketcher.Constraint("Coincident", 2, 2, 3, 1),
    Sketcher.Constraint("Coincident", 3, 2, 0, 1),
    Sketcher.Constraint("Coincident", 4, 2, 5, 1),
    Sketcher.Constraint("Coincident", 5, 2, 6, 1),
    Sketcher.Constraint("Coincident", 6, 2, 7, 1),
    Sketcher.Constraint("Coincident", 7, 2, 4, 1),
    Sketcher.Constraint("Coincident", 8, 2, 9, 1),
    Sketcher.Constraint("Coincident", 9, 2, 10, 1),
    Sketcher.Constraint("Coincident", 10, 2, 11, 1),
    Sketcher.Constraint("Coincident", 11, 2, 8, 1),
    Sketcher.Constraint("Coincident", 12, 2, 13, 1),
    Sketcher.Constraint("Coincident", 13, 2, 14, 1),
    Sketcher.Constraint("Coincident", 14, 2, 15, 1),
    Sketcher.Constraint("Coincident", 15, 2, 12, 1),
    Sketcher.Constraint("Vertical", 0),
    Sketcher.Constraint("Horizontal", 1),
    Sketcher.Constraint("Vertical", 2),
    Sketcher.Constraint("Horizontal", 3),
    Sketcher.Constraint("Vertical", 4),
    Sketcher.Constraint("Horizontal", 5),
    Sketcher.Constraint("Vertical", 6),
    Sketcher.Constraint("Horizontal", 7),
    Sketcher.Constraint("Vertical", 8),
    Sketcher.Constraint("Horizontal", 9),
    Sketcher.Constraint("Vertical", 10),
    Sketcher.Constraint("Horizontal", 11),
    Sketcher.Constraint("Vertical", 12),
    Sketcher.Constraint("Horizontal", 13),
    Sketcher.Constraint("Vertical", 14),
    Sketcher.Constraint("Horizontal", 15),
    Sketcher.Constraint("Vertical", 3, 2, 4, 2),
    Sketcher.Constraint("Vertical", 2, 2, 5, 2),
    Sketcher.Constraint("Vertical", 7, 2, 8, 2),
    Sketcher.Constraint("Vertical", 6, 2, 9, 2),
    Sketcher.Constraint("Vertical", 11, 2, 12, 2),
    Sketcher.Constraint("Vertical", 10, 2, 13, 2),
    Sketcher.Constraint("Equal", 2, 4),
    Sketcher.Constraint("Equal", 6, 8),
    Sketcher.Constraint("Equal", 10, 12),
    Sketcher.Constraint("DistanceY", 0, 2, 0, 1, Q("0.5 in")),
    Sketcher.Constraint("DistanceX", 1, 1, 1, 2, Q("0.25 in")),
    Sketcher.Constraint("DistanceX", -1, 1, 0, 2, Q("0.38 in")),
    Sketcher.Constraint("DistanceY", 0, 2, -1, 1, Q("2.38 in")),
    Sketcher.Constraint("DistanceY", 12, 2, -1, 1, Q("5.88 in")),
    Sketcher.Constraint("DistanceY", 4, 2, -1, 1, Q("90.085333 mm")),
    Sketcher.Constraint("DistanceY", 8, 2, -1, 1, Q("119.718667 mm")),
])
sketch5.setExpression("Constraints[41]", "Params.sketch5_height")
sketch5.setExpression("Constraints[42]", "Params.sketch5_width")
pocket2 = body.newObject("PartDesign::Pocket", "Pocket001")
pocket2.Profile = sketch5
pocket2.setExpression("Length", "Params.pocket2_length")

sketch6 = body.newObject("Sketcher::SketchObject", "Sketch005")
sketch6.AttachmentSupport = (doc.getObject("XZ_Plane"), [""])
sketch6.MapMode = "FlatFace"
sketch6.AttachmentOffset = App.Placement(Vector(0, 0, 5.88 * 25.4), App.Rotation())
sketch6.addGeometry([
    Part.LineSegment(Vector(9.652, -92.075, 0), Vector(9.652, -107.95, 0)),
    Part.LineSegment(Vector(9.652, -107.95, 0), Vector(16.002, -107.95, 0)),
    Part.LineSegment(Vector(16.002, -107.95, 0), Vector(16.002, -92.075, 0)),
    Part.LineSegment(Vector(16.002, -92.075, 0), Vector(9.652, -92.075, 0)),
    Part.LineSegment(Vector(9.652, -63.5, 0), Vector(9.652, -79.375, 0)),
    Part.LineSegment(Vector(9.652, -79.375, 0), Vector(16.002, -79.375, 0)),
    Part.LineSegment(Vector(16.002, -79.375, 0), Vector(16.002, -63.5, 0)),
    Part.LineSegment(Vector(16.002, -63.5, 0), Vector(9.652, -63.5, 0)),
    Part.LineSegment(Vector(9.652, -34.925, 0), Vector(9.652, -50.8, 0)),
    Part.LineSegment(Vector(9.652, -50.8, 0), Vector(16.002, -50.8, 0)),
    Part.LineSegment(Vector(16.002, -50.8, 0), Vector(16.002, -34.925, 0)),
    Part.LineSegment(Vector(16.002, -34.925, 0), Vector(9.652, -34.925, 0)),
    Part.LineSegment(Vector(9.652, -22.225, 0), Vector(16.002, -22.225, 0)),
    Part.LineSegment(Vector(16.002, -22.225, 0), Vector(16.002, 6.35, 0)),
    Part.LineSegment(Vector(16.002, 6.35, 0), Vector(9.652, 6.35, 0)),
    Part.LineSegment(Vector(9.652, 6.35, 0), Vector(9.652, -22.225, 0)),
], False)
sketch6.addConstraint([
    Sketcher.Constraint("Coincident", 0, 2, 1, 1),
    Sketcher.Constraint("Coincident", 1, 2, 2, 1),
    Sketcher.Constraint("Coincident", 2, 2, 3, 1),
    Sketcher.Constraint("Coincident", 3, 2, 0, 1),
    Sketcher.Constraint("Coincident", 4, 2, 5, 1),
    Sketcher.Constraint("Coincident", 5, 2, 6, 1),
    Sketcher.Constraint("Coincident", 6, 2, 7, 1),
    Sketcher.Constraint("Coincident", 7, 2, 4, 1),
    Sketcher.Constraint("Coincident", 8, 2, 9, 1),
    Sketcher.Constraint("Coincident", 9, 2, 10, 1),
    Sketcher.Constraint("Coincident", 10, 2, 11, 1),
    Sketcher.Constraint("Coincident", 11, 2, 8, 1),
    Sketcher.Constraint("Coincident", 12, 2, 13, 1),
    Sketcher.Constraint("Coincident", 13, 2, 14, 1),
    Sketcher.Constraint("Coincident", 14, 2, 15, 1),
    Sketcher.Constraint("Coincident", 15, 2, 12, 1),
    Sketcher.Constraint("Vertical", 0),
    Sketcher.Constraint("Horizontal", 1),
    Sketcher.Constraint("Vertical", 2),
    Sketcher.Constraint("Horizontal", 3),
    Sketcher.Constraint("Vertical", 4),
    Sketcher.Constraint("Horizontal", 5),
    Sketcher.Constraint("Vertical", 6),
    Sketcher.Constraint("Horizontal", 7),
    Sketcher.Constraint("Vertical", 8),
    Sketcher.Constraint("Horizontal", 9),
    Sketcher.Constraint("Vertical", 10),
    Sketcher.Constraint("Horizontal", 11),
    Sketcher.Constraint("Horizontal", 12),
    Sketcher.Constraint("Vertical", 13),
    Sketcher.Constraint("Horizontal", 14),
    Sketcher.Constraint("Vertical", 15),
    Sketcher.Constraint("Vertical", 3, 2, 4, 2),
    Sketcher.Constraint("Vertical", 2, 2, 5, 2),
    Sketcher.Constraint("Vertical", 7, 2, 8, 2),
    Sketcher.Constraint("Vertical", 6, 2, 9, 2),
    Sketcher.Constraint("Vertical", 10, 2, 12, 2),
    Sketcher.Constraint("Vertical", 11, 2, 14, 2),
    Sketcher.Constraint("Equal", 2, 4),
    Sketcher.Constraint("Equal", 6, 8),
    Sketcher.Constraint("DistanceY", 8, 2, -1, 1, Q("2 in")),
    Sketcher.Constraint("DistanceX", 1, 1, 1, 2, Q("0.25 in")),
    Sketcher.Constraint("DistanceY", 6, 2, -1, 1, Q("2.5 in")),
    Sketcher.Constraint("DistanceY", 3, 2, 4, 2, Q("0.5 in")),
    Sketcher.Constraint("DistanceY", 10, 2, 12, 2, Q("0.5 in")),
    Sketcher.Constraint("DistanceY", 0, 2, 0, 1, Q("0.625 in")),
    Sketcher.Constraint("DistanceY", 13, 1, 13, 2, Q("1.125 in")),
    Sketcher.Constraint("DistanceX", -1, 1, 0, 2, Q("0.38 in")),
])
sketch6.setExpression("Constraints[41]", "Params.sketch6_width")
sketch6.setExpression("Constraints[45]", "Params.sketch6_height")
sketch6.setExpression("Constraints[46]", "Params.sketch6_height2")
pocket3 = body.newObject("PartDesign::Pocket", "Pocket002")
pocket3.Profile = sketch6
pocket3.setExpression("Length", "Params.pocket3_length")

doc.recompute()
